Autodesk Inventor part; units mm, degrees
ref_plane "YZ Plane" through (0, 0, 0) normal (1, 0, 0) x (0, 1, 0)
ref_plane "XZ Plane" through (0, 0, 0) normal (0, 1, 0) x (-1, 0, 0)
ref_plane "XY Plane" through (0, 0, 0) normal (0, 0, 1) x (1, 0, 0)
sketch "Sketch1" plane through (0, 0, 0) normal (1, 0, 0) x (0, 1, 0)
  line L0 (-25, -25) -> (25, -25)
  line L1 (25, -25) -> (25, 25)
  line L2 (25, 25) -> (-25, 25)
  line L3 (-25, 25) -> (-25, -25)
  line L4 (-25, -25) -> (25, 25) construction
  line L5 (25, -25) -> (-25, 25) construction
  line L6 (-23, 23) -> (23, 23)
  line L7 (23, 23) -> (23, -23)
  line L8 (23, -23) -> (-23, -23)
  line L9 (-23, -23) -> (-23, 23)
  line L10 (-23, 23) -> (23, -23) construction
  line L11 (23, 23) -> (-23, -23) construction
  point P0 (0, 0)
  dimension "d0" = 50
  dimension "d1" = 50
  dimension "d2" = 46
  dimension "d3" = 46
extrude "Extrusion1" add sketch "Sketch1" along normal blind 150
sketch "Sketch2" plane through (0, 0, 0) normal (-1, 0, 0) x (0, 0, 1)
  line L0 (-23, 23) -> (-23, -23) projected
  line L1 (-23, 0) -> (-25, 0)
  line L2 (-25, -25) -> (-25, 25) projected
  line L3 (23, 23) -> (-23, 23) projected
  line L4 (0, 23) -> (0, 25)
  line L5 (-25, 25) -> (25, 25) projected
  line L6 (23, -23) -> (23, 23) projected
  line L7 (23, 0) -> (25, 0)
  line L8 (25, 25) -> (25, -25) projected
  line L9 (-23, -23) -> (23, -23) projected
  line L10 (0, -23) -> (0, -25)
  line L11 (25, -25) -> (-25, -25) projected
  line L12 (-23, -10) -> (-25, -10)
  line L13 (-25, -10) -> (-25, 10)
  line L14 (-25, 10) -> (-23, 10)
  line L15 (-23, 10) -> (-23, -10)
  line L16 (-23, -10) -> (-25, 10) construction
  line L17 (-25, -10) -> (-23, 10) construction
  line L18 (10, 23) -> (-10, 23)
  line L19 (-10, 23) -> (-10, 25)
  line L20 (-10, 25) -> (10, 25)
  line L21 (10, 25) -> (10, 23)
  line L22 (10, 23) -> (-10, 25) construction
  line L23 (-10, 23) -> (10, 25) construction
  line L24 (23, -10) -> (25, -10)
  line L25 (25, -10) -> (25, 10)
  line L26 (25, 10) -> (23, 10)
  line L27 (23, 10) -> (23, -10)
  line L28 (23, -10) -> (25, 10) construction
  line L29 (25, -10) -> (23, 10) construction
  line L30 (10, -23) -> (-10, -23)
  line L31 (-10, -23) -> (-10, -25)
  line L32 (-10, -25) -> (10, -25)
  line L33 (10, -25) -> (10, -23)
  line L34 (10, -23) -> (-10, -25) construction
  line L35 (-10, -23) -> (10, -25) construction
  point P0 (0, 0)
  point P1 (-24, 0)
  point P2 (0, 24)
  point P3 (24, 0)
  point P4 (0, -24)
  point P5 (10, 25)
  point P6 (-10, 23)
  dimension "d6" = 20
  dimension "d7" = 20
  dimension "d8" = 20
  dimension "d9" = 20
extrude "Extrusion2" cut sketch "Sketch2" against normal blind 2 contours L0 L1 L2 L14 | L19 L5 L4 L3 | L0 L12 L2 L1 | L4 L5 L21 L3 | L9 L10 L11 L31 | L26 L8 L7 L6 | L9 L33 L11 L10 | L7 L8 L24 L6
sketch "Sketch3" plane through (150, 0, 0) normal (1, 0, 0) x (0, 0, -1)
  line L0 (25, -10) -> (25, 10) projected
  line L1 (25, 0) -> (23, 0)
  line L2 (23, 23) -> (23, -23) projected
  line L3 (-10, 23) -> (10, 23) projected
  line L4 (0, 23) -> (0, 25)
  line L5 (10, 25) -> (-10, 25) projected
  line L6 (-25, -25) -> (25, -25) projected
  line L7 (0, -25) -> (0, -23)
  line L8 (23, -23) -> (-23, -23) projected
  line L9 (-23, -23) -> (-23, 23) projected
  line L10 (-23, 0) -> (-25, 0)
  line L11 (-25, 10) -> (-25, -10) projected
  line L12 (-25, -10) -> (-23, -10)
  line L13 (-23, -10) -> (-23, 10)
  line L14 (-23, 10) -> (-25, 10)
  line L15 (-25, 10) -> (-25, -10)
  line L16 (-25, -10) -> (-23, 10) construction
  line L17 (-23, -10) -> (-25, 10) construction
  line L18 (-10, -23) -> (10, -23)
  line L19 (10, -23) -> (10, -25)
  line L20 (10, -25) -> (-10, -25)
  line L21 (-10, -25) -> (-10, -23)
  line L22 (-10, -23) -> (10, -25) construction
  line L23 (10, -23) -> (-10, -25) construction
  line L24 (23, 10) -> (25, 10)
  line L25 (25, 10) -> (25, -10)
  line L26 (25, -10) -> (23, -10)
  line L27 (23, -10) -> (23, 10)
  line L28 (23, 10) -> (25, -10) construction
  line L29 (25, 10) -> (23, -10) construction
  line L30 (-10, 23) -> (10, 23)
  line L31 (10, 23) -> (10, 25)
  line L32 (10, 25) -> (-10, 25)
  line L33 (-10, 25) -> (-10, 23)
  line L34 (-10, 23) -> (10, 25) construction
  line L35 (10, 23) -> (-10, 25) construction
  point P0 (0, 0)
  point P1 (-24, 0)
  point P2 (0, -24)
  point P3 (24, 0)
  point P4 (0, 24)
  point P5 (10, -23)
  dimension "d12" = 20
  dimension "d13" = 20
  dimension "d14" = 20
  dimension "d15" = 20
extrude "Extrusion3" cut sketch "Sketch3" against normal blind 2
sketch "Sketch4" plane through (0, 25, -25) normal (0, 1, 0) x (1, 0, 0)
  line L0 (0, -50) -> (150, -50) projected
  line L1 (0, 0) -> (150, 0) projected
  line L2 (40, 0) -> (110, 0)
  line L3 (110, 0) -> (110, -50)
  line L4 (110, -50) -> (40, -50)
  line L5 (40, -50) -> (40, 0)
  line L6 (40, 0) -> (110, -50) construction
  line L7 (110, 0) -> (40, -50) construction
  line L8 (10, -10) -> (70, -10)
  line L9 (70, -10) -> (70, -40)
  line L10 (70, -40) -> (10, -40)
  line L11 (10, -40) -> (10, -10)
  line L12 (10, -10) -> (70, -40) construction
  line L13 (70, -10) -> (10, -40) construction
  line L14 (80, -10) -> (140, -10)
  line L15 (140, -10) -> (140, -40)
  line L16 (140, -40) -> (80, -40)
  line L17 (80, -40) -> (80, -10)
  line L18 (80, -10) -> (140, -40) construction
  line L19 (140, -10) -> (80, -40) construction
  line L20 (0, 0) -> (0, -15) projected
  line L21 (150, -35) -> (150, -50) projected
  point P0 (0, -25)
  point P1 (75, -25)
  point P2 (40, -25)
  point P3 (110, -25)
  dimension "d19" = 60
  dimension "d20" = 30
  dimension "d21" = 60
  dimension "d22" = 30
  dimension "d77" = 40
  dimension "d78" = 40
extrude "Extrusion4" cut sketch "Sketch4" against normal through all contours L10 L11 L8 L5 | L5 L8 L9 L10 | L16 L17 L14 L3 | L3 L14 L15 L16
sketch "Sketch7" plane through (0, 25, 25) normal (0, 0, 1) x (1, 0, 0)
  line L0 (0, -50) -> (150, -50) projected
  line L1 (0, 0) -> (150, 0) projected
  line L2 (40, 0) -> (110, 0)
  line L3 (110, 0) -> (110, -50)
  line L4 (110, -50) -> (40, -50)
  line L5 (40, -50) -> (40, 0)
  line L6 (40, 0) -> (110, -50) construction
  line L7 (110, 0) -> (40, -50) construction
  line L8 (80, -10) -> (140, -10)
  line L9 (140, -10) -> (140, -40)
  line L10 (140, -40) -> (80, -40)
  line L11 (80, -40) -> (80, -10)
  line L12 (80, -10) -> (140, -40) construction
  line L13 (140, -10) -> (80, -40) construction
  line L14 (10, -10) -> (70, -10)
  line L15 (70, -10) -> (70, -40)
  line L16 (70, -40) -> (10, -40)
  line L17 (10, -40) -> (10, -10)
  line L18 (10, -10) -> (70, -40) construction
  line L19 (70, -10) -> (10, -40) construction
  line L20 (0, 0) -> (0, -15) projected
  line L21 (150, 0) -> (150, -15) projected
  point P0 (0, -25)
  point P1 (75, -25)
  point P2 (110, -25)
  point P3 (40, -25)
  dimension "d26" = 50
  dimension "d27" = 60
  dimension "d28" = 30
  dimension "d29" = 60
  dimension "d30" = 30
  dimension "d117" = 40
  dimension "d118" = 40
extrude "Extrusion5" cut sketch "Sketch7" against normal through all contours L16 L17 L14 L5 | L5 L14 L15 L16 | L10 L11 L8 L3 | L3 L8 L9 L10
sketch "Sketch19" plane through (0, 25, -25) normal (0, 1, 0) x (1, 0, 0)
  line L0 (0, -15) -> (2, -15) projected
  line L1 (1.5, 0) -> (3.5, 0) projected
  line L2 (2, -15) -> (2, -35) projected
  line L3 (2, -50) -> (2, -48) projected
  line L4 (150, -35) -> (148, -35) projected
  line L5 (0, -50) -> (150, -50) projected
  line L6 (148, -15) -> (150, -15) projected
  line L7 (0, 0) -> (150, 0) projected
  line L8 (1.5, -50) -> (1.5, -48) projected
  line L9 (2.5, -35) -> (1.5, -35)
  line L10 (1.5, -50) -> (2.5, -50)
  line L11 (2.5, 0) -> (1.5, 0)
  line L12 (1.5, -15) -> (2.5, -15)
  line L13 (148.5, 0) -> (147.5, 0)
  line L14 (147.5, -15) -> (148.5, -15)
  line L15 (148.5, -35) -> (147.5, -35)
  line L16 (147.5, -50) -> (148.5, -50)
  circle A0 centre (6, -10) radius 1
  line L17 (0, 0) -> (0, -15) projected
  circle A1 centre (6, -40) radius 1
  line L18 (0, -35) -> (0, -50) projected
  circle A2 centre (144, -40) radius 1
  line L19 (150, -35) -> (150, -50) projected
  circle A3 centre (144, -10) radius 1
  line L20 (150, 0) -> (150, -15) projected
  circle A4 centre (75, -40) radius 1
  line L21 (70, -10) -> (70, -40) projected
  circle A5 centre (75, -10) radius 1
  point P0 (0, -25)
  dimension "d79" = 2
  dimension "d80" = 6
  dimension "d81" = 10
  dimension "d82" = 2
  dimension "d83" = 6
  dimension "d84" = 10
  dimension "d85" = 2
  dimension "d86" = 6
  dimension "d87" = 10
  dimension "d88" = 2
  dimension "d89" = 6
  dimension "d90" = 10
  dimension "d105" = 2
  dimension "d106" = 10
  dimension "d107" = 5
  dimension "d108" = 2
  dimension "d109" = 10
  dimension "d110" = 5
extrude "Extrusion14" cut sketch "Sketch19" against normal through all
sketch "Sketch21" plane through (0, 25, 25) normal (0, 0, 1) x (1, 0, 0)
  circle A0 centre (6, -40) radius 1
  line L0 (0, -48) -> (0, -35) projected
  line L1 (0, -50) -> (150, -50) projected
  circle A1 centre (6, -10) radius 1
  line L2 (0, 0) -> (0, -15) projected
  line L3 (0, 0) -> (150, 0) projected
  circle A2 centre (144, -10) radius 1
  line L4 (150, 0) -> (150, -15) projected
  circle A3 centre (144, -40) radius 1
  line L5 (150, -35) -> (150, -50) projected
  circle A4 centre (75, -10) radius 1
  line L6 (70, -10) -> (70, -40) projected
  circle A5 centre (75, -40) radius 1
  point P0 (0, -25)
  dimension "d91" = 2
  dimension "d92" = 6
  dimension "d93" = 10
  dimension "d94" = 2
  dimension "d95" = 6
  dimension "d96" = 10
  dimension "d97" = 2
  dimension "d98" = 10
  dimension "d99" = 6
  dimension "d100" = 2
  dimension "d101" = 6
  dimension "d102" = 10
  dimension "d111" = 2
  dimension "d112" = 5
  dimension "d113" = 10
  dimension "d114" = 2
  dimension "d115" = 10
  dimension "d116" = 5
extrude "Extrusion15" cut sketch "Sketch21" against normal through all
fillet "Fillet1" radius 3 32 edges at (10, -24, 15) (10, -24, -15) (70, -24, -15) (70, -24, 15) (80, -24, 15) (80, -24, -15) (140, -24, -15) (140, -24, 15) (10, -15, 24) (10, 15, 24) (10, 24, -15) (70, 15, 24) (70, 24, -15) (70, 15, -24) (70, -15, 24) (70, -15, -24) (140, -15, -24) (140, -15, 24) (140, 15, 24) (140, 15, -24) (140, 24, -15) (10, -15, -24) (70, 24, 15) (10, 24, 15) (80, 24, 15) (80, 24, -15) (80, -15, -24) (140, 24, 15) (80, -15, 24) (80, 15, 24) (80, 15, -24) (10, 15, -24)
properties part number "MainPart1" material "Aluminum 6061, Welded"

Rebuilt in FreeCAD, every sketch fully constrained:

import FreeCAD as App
import Part
import Sketcher
from FreeCAD import Vector


def edges_at(feature, points):
    """Names of the edges that pass closest to the given points."""
    edges = feature.Shape.Edges
    near = lambda p: min(range(len(edges)), key=lambda i: edges[i].distToShape(Part.Vertex(*p))[0])
    return sorted({f"Edge{near(p) + 1}" for p in points})


def add_polygon(sketch, points):
    """Adds a closed chain of lines whose ends are joined by coincident constraints."""
    first, n = sketch.GeometryCount, len(points)
    for a, b in zip(points, points[1:] + points[:1]):
        sketch.addGeometry(Part.LineSegment(App.Vector(*a, 0), App.Vector(*b, 0)), False)
    for i in range(n):
        sketch.addConstraint(Sketcher.Constraint("Coincident", first + i, 2, first + (i + 1) % n, 1))

doc = App.newDocument("Part")
body = doc.addObject("PartDesign::Body", "Body")

# Sketch on YZ plane
sketch1 = doc.addObject("Sketcher::SketchObject", "Sketch")
body.addObject(sketch1)
sketch1.AttachmentSupport = (doc.YZ_Plane, [""])
sketch1.MapMode = "FlatFace"
add_polygon(sketch1, [(-25, 25), (-25, -25), (25, -25), (25, 25)])  # lines 0-3
add_polygon(sketch1, [(-23, -23), (-23, 23), (23, 23), (23, -23)])  # lines 4-7
sketch1.addConstraint([
    Sketcher.Constraint("Vertical", 0),
    Sketcher.Constraint("Horizontal", 1),
    Sketcher.Constraint("Vertical", 2),
    Sketcher.Constraint("Horizontal", 3),
    Sketcher.Constraint("Vertical", 4),
    Sketcher.Constraint("Horizontal", 5),
    Sketcher.Constraint("Vertical", 6),
    Sketcher.Constraint("Horizontal", 7),
    Sketcher.Constraint("Symmetric", 0, 2, 2, 2, -1, 1),
    Sketcher.Constraint("Symmetric", 4, 2, 6, 2, -1, 1),
    Sketcher.Constraint("Equal", 3, 0),
    Sketcher.Constraint("Equal", 7, 4),
    Sketcher.Constraint("DistanceX", 1, 1, 1, 2, 50.0),
    Sketcher.Constraint("DistanceX", 5, 1, 5, 2, 46.0),
])
pad1 = doc.addObject("PartDesign::Pad", "Pad")
body.addObject(pad1)
pad1.Profile = sketch1
pad1.Length = 150

# Sketch on YZ plane
sketch2 = doc.addObject("Sketcher::SketchObject", "Sketch001")
body.addObject(sketch2)
sketch2.AttachmentSupport = (doc.YZ_Plane, [""])
sketch2.MapMode = "FlatFace"
add_polygon(sketch2, [(10, -23), (10, -25), (-10, -25), (-10, -23)])  # lines 0-3
add_polygon(sketch2, [(25, -10), (23, -10), (23, 10), (25, 10)])  # lines 4-7
add_polygon(sketch2, [(-23, -10), (-25, -10), (-25, 10), (-23, 10)])  # lines 8-11
add_polygon(sketch2, [(10, 25), (10, 23), (-10, 23), (-10, 25)])  # lines 12-15
sketch2.addConstraint([
    Sketcher.Constraint("Vertical", 0),
    Sketcher.Constraint("Horizontal", 1),
    Sketcher.Constraint("Vertical", 2),
    Sketcher.Constraint("Horizontal", 3),
    Sketcher.Constraint("Horizontal", 4),
    Sketcher.Constraint("Vertical", 5),
    Sketcher.Constraint("Horizontal", 6),
    Sketcher.Constraint("Vertical", 7),
    Sketcher.Constraint("Horizontal", 8),
    Sketcher.Constraint("Vertical", 9),
    Sketcher.Constraint("Horizontal", 10),
    Sketcher.Constraint("Vertical", 11),
    Sketcher.Constraint("Vertical", 12),
    Sketcher.Constraint("Horizontal", 13),
    Sketcher.Constraint("Vertical", 14),
    Sketcher.Constraint("Horizontal", 15),
    Sketcher.Constraint("Symmetric", 6, 2, 8, 2, -1, 1),
    Sketcher.Constraint("Symmetric", 4, 2, 10, 2, -1, 1),
    Sketcher.Constraint("Symmetric", 2, 2, 12, 2, -1, 1),
    Sketcher.Constraint("Symmetric", 0, 2, 14, 2, -1, 1),
    Sketcher.Constraint("Horizontal", 7, 2, 8, 2),
    Sketcher.Constraint("Vertical", 3, 2, 12, 2),
    Sketcher.Constraint("Equal", 10, 0),
    Sketcher.Constraint("Equal", 15, 5),
    Sketcher.Constraint("DistanceX", 1, 2, 1, 1, 20.0),
    Sketcher.Constraint("DistanceX", 4, 2, 4, 1, 2.0),
    Sketcher.Constraint("DistanceY", 0, 2, -1, 1, 25.0),
    Sketcher.Constraint("DistanceX", -1, 1, 4, 2, 23.0),
])
pocket1 = doc.addObject("PartDesign::Pocket", "Pocket")
body.addObject(pocket1)
pocket1.Profile = sketch2
pocket1.Length = 2
pocket1.Reversed = True

# Sketch on YZ plane
sketch3 = doc.addObject("Sketcher::SketchObject", "Sketch002")
body.addObject(sketch3)
sketch3.AttachmentSupport = (doc.YZ_Plane, [""])
sketch3.MapMode = "FlatFace"
sketch3.AttachmentOffset = App.Placement(Vector(0, 0, 150), App.Rotation())
add_polygon(sketch3, [(-10, -23), (-10, -25), (10, -25), (10, -23)])  # lines 0-3
add_polygon(sketch3, [(-10, 25), (-10, 23), (10, 23), (10, 25)])  # lines 4-7
add_polygon(sketch3, [(-25, -10), (-23, -10), (-23, 10), (-25, 10)])  # lines 8-11
add_polygon(sketch3, [(25, 10), (23, 10), (23, -10), (25, -10)])  # lines 12-15
sketch3.addConstraint([
    Sketcher.Constraint("Vertical", 0),
    Sketcher.Constraint("Horizontal", 1),
    Sketcher.Constraint("Vertical", 2),
    Sketcher.Constraint("Horizontal", 3),
    Sketcher.Constraint("Vertical", 4),
    Sketcher.Constraint("Horizontal", 5),
    Sketcher.Constraint("Vertical", 6),
    Sketcher.Constraint("Horizontal", 7),
    Sketcher.Constraint("Horizontal", 8),
    Sketcher.Constraint("Vertical", 9),
    Sketcher.Constraint("Horizontal", 10),
    Sketcher.Constraint("Vertical", 11),
    Sketcher.Constraint("Horizontal", 12),
    Sketcher.Constraint("Vertical", 13),
    Sketcher.Constraint("Horizontal", 14),
    Sketcher.Constraint("Vertical", 15),
    Sketcher.Constraint("Symmetric", 2, 2, 4, 2, -1, 1),
    Sketcher.Constraint("Symmetric", 0, 2, 6, 2, -1, 1),
    Sketcher.Constraint("Symmetric", 8, 2, 12, 2, -1, 1),
    Sketcher.Constraint("Symmetric", 10, 2, 14, 2, -1, 1),
    Sketcher.Constraint("Horizontal", 10, 2, 12, 2),
    Sketcher.Constraint("Vertical", 3, 2, 4, 2),
    Sketcher.Constraint("Equal", 14, 0),
    Sketcher.Constraint("Equal", 7, 9),
    Sketcher.Constraint("DistanceX", 1, 1, 1, 2, 20.0),
    Sketcher.Constraint("DistanceX", 8, 1, 8, 2, 2.0),
    Sketcher.Constraint("DistanceY", 0, 2, -1, 1, 25.0),
    Sketcher.Constraint("DistanceX", 8, 2, -1, 1, 23.0),
])
pocket2 = doc.addObject("PartDesign::Pocket", "Pocket001")
body.addObject(pocket2)
pocket2.Profile = sketch3
pocket2.Length = 2

# Sketch on XZ plane
sketch4 = doc.addObject("Sketcher::SketchObject", "Sketch003")
body.addObject(sketch4)
sketch4.AttachmentSupport = (doc.XZ_Plane, [""])
sketch4.MapMode = "FlatFace"
sketch4.AttachmentOffset = App.Placement(Vector(0, 0, -25), App.Rotation())
add_polygon(sketch4, [(10, 15), (70, 15), (70, -15), (10, -15)])  # lines 0-3
add_polygon(sketch4, [(80, 15), (140, 15), (140, -15), (80, -15)])  # lines 4-7
sketch4.addConstraint([
    Sketcher.Constraint("Horizontal", 0),
    Sketcher.Constraint("Vertical", 1),
    Sketcher.Constraint("Horizontal", 2),
    Sketcher.Constraint("Vertical", 3),
    Sketcher.Constraint("Horizontal", 4),
    Sketcher.Constraint("Vertical", 5),
    Sketcher.Constraint("Horizontal", 6),
    Sketcher.Constraint("Vertical", 7),
    Sketcher.Constraint("Horizontal", 3, 2, 4, 2),
    Sketcher.Constraint("Horizontal", 2, 2, 5, 2),
    Sketcher.Constraint("Equal", 2, 4),
    Sketcher.Constraint("DistanceX", 0, 1, 0, 2, 60.0),
    Sketcher.Constraint("DistanceY", 1, 2, 1, 1, 30.0),
    Sketcher.Constraint("DistanceX", -1, 1, 0, 2, 70.0),
    Sketcher.Constraint("DistanceY", -1, 1, 0, 2, 15.0),
    Sketcher.Constraint("DistanceX", -1, 1, 4, 2, 140.0),
])
pocket3 = doc.addObject("PartDesign::Pocket", "Pocket002")
body.addObject(pocket3)
pocket3.Profile = sketch4
pocket3.Type = "ThroughAll"
pocket3.Reversed = True

# Sketch on XY plane
sketch5 = doc.addObject("Sketcher::SketchObject", "Sketch004")
body.addObject(sketch5)
sketch5.AttachmentSupport = (doc.XY_Plane, [""])
sketch5.MapMode = "FlatFace"
sketch5.AttachmentOffset = App.Placement(Vector(0, 0, 25), App.Rotation())
add_polygon(sketch5, [(10, -15), (70, -15), (70, 15), (10, 15)])  # lines 0-3
add_polygon(sketch5, [(80, -15), (140, -15), (140, 15), (80, 15)])  # lines 4-7
sketch5.addConstraint([
    Sketcher.Constraint("Horizontal", 0),
    Sketcher.Constraint("Vertical", 1),
    Sketcher.Constraint("Horizontal", 2),
    Sketcher.Constraint("Vertical", 3),
    Sketcher.Constraint("Horizontal", 4),
    Sketcher.Constraint("Vertical", 5),
    Sketcher.Constraint("Horizontal", 6),
    Sketcher.Constraint("Vertical", 7),
    Sketcher.Constraint("Horizontal", 3, 2, 4, 2),
    Sketcher.Constraint("Horizontal", 2, 2, 5, 2),
    Sketcher.Constraint("Equal", 2, 4),
    Sketcher.Constraint("DistanceX", 0, 1, 0, 2, 60.0),
    Sketcher.Constraint("DistanceY", 1, 1, 1, 2, 30.0),
    Sketcher.Constraint("DistanceX", -1, 1, 0, 2, 70.0),
    Sketcher.Constraint("DistanceY", 0, 2, -1, 1, 15.0),
    Sketcher.Constraint("DistanceX", -1, 1, 4, 2, 140.0),
])
pocket4 = doc.addObject("PartDesign::Pocket", "Pocket003")
body.addObject(pocket4)
pocket4.Profile = sketch5
pocket4.Type = "ThroughAll"

# Sketch on XZ plane
sketch6 = doc.addObject("Sketcher::SketchObject", "Sketch005")
body.addObject(sketch6)
sketch6.AttachmentSupport = (doc.XZ_Plane, [""])
sketch6.MapMode = "FlatFace"
sketch6.AttachmentOffset = App.Placement(Vector(0, 0, -25), App.Rotation())
sketch6.addGeometry([
    Part.Circle(Vector(6, -15, 0), Vector(0, 0, 1), 1),  # 0
    Part.Circle(Vector(6, 15, 0), Vector(0, 0, 1), 1),  # 1
    Part.Circle(Vector(144, 15, 0), Vector(0, 0, 1), 1),  # 2
    Part.Circle(Vector(144, -15, 0), Vector(0, 0, 1), 1),  # 3
    Part.Circle(Vector(75, 15, 0), Vector(0, 0, 1), 1),  # 4
    Part.Circle(Vector(75, -15, 0), Vector(0, 0, 1), 1),  # 5
], False)
sketch6.addConstraint([
    Sketcher.Constraint("Equal", 0, 1),
    Sketcher.Constraint("Equal", 1, 2),
    Sketcher.Constraint("Equal", 2, 3),
    Sketcher.Constraint("Equal", 3, 4),
    Sketcher.Constraint("Equal", 4, 5),
    Sketcher.Constraint("Symmetric", 0, 3, 1, 3, -1),
    Sketcher.Constraint("Symmetric", 2, 3, 3, 3, -1),
    Sketcher.Constraint("Symmetric", 4, 3, 5, 3, -1),
    Sketcher.Constraint("Horizontal", 1, 3, 2, 3),
    Sketcher.Constraint("Horizontal", 2, 3, 4, 3),
    Sketcher.Constraint("Diameter", 0, 2.0),
    Sketcher.Constraint("DistanceX", -1, 1, 0, 3, 6.0),
    Sketcher.Constraint("DistanceY", 0, 3, -1, 1, 15.0),
    Sketcher.Constraint("DistanceX", -1, 1, 2, 3, 144.0),
    Sketcher.Constraint("DistanceX", -1, 1, 4, 3, 75.0),
])
pocket5 = doc.addObject("PartDesign::Pocket", "Pocket004")
body.addObject(pocket5)
pocket5.Profile = sketch6
pocket5.Type = "ThroughAll"
pocket5.Reversed = True

# Sketch on XY plane
sketch7 = doc.addObject("Sketcher::SketchObject", "Sketch006")
body.addObject(sketch7)
sketch7.AttachmentSupport = (doc.XY_Plane, [""])
sketch7.MapMode = "FlatFace"
sketch7.AttachmentOffset = App.Placement(Vector(0, 0, 25), App.Rotation())
sketch7.addGeometry([
    Part.Circle(Vector(6, -15, 0), Vector(0, 0, 1), 1),  # 0
    Part.Circle(Vector(6, 15, 0), Vector(0, 0, 1), 1),  # 1
    Part.Circle(Vector(144, 15, 0), Vector(0, 0, 1), 1),  # 2
    Part.Circle(Vector(144, -15, 0), Vector(0, 0, 1), 1),  # 3
    Part.Circle(Vector(75, 15, 0), Vector(0, 0, 1), 1),  # 4
    Part.Circle(Vector(75, -15, 0), Vector(0, 0, 1), 1),  # 5
], False)
sketch7.addConstraint([
    Sketcher.Constraint("Equal", 0, 1),
    Sketcher.Constraint("Equal", 1, 2),
    Sketcher.Constraint("Equal", 2, 3),
    Sketcher.Constraint("Equal", 3, 4),
    Sketcher.Constraint("Equal", 4, 5),
    Sketcher.Constraint("Symmetric", 0, 3, 1, 3, -1),
    Sketcher.Constraint("Symmetric", 2, 3, 3, 3, -1),
    Sketcher.Constraint("Symmetric", 4, 3, 5, 3, -1),
    Sketcher.Constraint("Horizontal", 1, 3, 2, 3),
    Sketcher.Constraint("Horizontal", 2, 3, 4, 3),
    Sketcher.Constraint("Diameter", 0, 2.0),
    Sketcher.Constraint("DistanceX", -1, 1, 0, 3, 6.0),
    Sketcher.Constraint("DistanceY", 0, 3, -1, 1, 15.0),
    Sketcher.Constraint("DistanceX", -1, 1, 2, 3, 144.0),
    Sketcher.Constraint("DistanceX", -1, 1, 4, 3, 75.0),
])
pocket6 = doc.addObject("PartDesign::Pocket", "Pocket005")
body.addObject(pocket6)
pocket6.Profile = sketch7
pocket6.Type = "ThroughAll"
doc.recompute()

fillet = doc.addObject("PartDesign::Fillet", "Fillet")
body.addObject(fillet)
fillet.Base = (pocket6, edges_at(pocket6, [
    (10, -24, 15),
    (10, -24, -15),
    (70, -24, -15),
    (70, -24, 15),
    (80, -24, 15),
    (80, -24, -15),
    (140, -24, -15),
    (140, -24, 15),
    (10, -15, 24),
    (10, 15, 24),
    (10, 24, -15),
    (70, 15, 24),
    (70, 24, -15),
    (70, 15, -24),
    (70, -15, 24),
    (70, -15, -24),
    (140, -15, -24),
    (140, -15, 24),
    (140, 15, 24),
    (140, 15, -24),
    (140, 24, -15),
    (10, -15, -24),
    (70, 24, 15),
    (10, 24, 15),
    (80, 24, 15),
    (80, 24, -15),
    (80, -15, -24),
    (140, 24, 15),
    (80, -15, 24),
    (80, 15, 24),
    (80, 15, -24),
    (10, 15, -24),
]))
fillet.Radius = 3

doc.recompute()
